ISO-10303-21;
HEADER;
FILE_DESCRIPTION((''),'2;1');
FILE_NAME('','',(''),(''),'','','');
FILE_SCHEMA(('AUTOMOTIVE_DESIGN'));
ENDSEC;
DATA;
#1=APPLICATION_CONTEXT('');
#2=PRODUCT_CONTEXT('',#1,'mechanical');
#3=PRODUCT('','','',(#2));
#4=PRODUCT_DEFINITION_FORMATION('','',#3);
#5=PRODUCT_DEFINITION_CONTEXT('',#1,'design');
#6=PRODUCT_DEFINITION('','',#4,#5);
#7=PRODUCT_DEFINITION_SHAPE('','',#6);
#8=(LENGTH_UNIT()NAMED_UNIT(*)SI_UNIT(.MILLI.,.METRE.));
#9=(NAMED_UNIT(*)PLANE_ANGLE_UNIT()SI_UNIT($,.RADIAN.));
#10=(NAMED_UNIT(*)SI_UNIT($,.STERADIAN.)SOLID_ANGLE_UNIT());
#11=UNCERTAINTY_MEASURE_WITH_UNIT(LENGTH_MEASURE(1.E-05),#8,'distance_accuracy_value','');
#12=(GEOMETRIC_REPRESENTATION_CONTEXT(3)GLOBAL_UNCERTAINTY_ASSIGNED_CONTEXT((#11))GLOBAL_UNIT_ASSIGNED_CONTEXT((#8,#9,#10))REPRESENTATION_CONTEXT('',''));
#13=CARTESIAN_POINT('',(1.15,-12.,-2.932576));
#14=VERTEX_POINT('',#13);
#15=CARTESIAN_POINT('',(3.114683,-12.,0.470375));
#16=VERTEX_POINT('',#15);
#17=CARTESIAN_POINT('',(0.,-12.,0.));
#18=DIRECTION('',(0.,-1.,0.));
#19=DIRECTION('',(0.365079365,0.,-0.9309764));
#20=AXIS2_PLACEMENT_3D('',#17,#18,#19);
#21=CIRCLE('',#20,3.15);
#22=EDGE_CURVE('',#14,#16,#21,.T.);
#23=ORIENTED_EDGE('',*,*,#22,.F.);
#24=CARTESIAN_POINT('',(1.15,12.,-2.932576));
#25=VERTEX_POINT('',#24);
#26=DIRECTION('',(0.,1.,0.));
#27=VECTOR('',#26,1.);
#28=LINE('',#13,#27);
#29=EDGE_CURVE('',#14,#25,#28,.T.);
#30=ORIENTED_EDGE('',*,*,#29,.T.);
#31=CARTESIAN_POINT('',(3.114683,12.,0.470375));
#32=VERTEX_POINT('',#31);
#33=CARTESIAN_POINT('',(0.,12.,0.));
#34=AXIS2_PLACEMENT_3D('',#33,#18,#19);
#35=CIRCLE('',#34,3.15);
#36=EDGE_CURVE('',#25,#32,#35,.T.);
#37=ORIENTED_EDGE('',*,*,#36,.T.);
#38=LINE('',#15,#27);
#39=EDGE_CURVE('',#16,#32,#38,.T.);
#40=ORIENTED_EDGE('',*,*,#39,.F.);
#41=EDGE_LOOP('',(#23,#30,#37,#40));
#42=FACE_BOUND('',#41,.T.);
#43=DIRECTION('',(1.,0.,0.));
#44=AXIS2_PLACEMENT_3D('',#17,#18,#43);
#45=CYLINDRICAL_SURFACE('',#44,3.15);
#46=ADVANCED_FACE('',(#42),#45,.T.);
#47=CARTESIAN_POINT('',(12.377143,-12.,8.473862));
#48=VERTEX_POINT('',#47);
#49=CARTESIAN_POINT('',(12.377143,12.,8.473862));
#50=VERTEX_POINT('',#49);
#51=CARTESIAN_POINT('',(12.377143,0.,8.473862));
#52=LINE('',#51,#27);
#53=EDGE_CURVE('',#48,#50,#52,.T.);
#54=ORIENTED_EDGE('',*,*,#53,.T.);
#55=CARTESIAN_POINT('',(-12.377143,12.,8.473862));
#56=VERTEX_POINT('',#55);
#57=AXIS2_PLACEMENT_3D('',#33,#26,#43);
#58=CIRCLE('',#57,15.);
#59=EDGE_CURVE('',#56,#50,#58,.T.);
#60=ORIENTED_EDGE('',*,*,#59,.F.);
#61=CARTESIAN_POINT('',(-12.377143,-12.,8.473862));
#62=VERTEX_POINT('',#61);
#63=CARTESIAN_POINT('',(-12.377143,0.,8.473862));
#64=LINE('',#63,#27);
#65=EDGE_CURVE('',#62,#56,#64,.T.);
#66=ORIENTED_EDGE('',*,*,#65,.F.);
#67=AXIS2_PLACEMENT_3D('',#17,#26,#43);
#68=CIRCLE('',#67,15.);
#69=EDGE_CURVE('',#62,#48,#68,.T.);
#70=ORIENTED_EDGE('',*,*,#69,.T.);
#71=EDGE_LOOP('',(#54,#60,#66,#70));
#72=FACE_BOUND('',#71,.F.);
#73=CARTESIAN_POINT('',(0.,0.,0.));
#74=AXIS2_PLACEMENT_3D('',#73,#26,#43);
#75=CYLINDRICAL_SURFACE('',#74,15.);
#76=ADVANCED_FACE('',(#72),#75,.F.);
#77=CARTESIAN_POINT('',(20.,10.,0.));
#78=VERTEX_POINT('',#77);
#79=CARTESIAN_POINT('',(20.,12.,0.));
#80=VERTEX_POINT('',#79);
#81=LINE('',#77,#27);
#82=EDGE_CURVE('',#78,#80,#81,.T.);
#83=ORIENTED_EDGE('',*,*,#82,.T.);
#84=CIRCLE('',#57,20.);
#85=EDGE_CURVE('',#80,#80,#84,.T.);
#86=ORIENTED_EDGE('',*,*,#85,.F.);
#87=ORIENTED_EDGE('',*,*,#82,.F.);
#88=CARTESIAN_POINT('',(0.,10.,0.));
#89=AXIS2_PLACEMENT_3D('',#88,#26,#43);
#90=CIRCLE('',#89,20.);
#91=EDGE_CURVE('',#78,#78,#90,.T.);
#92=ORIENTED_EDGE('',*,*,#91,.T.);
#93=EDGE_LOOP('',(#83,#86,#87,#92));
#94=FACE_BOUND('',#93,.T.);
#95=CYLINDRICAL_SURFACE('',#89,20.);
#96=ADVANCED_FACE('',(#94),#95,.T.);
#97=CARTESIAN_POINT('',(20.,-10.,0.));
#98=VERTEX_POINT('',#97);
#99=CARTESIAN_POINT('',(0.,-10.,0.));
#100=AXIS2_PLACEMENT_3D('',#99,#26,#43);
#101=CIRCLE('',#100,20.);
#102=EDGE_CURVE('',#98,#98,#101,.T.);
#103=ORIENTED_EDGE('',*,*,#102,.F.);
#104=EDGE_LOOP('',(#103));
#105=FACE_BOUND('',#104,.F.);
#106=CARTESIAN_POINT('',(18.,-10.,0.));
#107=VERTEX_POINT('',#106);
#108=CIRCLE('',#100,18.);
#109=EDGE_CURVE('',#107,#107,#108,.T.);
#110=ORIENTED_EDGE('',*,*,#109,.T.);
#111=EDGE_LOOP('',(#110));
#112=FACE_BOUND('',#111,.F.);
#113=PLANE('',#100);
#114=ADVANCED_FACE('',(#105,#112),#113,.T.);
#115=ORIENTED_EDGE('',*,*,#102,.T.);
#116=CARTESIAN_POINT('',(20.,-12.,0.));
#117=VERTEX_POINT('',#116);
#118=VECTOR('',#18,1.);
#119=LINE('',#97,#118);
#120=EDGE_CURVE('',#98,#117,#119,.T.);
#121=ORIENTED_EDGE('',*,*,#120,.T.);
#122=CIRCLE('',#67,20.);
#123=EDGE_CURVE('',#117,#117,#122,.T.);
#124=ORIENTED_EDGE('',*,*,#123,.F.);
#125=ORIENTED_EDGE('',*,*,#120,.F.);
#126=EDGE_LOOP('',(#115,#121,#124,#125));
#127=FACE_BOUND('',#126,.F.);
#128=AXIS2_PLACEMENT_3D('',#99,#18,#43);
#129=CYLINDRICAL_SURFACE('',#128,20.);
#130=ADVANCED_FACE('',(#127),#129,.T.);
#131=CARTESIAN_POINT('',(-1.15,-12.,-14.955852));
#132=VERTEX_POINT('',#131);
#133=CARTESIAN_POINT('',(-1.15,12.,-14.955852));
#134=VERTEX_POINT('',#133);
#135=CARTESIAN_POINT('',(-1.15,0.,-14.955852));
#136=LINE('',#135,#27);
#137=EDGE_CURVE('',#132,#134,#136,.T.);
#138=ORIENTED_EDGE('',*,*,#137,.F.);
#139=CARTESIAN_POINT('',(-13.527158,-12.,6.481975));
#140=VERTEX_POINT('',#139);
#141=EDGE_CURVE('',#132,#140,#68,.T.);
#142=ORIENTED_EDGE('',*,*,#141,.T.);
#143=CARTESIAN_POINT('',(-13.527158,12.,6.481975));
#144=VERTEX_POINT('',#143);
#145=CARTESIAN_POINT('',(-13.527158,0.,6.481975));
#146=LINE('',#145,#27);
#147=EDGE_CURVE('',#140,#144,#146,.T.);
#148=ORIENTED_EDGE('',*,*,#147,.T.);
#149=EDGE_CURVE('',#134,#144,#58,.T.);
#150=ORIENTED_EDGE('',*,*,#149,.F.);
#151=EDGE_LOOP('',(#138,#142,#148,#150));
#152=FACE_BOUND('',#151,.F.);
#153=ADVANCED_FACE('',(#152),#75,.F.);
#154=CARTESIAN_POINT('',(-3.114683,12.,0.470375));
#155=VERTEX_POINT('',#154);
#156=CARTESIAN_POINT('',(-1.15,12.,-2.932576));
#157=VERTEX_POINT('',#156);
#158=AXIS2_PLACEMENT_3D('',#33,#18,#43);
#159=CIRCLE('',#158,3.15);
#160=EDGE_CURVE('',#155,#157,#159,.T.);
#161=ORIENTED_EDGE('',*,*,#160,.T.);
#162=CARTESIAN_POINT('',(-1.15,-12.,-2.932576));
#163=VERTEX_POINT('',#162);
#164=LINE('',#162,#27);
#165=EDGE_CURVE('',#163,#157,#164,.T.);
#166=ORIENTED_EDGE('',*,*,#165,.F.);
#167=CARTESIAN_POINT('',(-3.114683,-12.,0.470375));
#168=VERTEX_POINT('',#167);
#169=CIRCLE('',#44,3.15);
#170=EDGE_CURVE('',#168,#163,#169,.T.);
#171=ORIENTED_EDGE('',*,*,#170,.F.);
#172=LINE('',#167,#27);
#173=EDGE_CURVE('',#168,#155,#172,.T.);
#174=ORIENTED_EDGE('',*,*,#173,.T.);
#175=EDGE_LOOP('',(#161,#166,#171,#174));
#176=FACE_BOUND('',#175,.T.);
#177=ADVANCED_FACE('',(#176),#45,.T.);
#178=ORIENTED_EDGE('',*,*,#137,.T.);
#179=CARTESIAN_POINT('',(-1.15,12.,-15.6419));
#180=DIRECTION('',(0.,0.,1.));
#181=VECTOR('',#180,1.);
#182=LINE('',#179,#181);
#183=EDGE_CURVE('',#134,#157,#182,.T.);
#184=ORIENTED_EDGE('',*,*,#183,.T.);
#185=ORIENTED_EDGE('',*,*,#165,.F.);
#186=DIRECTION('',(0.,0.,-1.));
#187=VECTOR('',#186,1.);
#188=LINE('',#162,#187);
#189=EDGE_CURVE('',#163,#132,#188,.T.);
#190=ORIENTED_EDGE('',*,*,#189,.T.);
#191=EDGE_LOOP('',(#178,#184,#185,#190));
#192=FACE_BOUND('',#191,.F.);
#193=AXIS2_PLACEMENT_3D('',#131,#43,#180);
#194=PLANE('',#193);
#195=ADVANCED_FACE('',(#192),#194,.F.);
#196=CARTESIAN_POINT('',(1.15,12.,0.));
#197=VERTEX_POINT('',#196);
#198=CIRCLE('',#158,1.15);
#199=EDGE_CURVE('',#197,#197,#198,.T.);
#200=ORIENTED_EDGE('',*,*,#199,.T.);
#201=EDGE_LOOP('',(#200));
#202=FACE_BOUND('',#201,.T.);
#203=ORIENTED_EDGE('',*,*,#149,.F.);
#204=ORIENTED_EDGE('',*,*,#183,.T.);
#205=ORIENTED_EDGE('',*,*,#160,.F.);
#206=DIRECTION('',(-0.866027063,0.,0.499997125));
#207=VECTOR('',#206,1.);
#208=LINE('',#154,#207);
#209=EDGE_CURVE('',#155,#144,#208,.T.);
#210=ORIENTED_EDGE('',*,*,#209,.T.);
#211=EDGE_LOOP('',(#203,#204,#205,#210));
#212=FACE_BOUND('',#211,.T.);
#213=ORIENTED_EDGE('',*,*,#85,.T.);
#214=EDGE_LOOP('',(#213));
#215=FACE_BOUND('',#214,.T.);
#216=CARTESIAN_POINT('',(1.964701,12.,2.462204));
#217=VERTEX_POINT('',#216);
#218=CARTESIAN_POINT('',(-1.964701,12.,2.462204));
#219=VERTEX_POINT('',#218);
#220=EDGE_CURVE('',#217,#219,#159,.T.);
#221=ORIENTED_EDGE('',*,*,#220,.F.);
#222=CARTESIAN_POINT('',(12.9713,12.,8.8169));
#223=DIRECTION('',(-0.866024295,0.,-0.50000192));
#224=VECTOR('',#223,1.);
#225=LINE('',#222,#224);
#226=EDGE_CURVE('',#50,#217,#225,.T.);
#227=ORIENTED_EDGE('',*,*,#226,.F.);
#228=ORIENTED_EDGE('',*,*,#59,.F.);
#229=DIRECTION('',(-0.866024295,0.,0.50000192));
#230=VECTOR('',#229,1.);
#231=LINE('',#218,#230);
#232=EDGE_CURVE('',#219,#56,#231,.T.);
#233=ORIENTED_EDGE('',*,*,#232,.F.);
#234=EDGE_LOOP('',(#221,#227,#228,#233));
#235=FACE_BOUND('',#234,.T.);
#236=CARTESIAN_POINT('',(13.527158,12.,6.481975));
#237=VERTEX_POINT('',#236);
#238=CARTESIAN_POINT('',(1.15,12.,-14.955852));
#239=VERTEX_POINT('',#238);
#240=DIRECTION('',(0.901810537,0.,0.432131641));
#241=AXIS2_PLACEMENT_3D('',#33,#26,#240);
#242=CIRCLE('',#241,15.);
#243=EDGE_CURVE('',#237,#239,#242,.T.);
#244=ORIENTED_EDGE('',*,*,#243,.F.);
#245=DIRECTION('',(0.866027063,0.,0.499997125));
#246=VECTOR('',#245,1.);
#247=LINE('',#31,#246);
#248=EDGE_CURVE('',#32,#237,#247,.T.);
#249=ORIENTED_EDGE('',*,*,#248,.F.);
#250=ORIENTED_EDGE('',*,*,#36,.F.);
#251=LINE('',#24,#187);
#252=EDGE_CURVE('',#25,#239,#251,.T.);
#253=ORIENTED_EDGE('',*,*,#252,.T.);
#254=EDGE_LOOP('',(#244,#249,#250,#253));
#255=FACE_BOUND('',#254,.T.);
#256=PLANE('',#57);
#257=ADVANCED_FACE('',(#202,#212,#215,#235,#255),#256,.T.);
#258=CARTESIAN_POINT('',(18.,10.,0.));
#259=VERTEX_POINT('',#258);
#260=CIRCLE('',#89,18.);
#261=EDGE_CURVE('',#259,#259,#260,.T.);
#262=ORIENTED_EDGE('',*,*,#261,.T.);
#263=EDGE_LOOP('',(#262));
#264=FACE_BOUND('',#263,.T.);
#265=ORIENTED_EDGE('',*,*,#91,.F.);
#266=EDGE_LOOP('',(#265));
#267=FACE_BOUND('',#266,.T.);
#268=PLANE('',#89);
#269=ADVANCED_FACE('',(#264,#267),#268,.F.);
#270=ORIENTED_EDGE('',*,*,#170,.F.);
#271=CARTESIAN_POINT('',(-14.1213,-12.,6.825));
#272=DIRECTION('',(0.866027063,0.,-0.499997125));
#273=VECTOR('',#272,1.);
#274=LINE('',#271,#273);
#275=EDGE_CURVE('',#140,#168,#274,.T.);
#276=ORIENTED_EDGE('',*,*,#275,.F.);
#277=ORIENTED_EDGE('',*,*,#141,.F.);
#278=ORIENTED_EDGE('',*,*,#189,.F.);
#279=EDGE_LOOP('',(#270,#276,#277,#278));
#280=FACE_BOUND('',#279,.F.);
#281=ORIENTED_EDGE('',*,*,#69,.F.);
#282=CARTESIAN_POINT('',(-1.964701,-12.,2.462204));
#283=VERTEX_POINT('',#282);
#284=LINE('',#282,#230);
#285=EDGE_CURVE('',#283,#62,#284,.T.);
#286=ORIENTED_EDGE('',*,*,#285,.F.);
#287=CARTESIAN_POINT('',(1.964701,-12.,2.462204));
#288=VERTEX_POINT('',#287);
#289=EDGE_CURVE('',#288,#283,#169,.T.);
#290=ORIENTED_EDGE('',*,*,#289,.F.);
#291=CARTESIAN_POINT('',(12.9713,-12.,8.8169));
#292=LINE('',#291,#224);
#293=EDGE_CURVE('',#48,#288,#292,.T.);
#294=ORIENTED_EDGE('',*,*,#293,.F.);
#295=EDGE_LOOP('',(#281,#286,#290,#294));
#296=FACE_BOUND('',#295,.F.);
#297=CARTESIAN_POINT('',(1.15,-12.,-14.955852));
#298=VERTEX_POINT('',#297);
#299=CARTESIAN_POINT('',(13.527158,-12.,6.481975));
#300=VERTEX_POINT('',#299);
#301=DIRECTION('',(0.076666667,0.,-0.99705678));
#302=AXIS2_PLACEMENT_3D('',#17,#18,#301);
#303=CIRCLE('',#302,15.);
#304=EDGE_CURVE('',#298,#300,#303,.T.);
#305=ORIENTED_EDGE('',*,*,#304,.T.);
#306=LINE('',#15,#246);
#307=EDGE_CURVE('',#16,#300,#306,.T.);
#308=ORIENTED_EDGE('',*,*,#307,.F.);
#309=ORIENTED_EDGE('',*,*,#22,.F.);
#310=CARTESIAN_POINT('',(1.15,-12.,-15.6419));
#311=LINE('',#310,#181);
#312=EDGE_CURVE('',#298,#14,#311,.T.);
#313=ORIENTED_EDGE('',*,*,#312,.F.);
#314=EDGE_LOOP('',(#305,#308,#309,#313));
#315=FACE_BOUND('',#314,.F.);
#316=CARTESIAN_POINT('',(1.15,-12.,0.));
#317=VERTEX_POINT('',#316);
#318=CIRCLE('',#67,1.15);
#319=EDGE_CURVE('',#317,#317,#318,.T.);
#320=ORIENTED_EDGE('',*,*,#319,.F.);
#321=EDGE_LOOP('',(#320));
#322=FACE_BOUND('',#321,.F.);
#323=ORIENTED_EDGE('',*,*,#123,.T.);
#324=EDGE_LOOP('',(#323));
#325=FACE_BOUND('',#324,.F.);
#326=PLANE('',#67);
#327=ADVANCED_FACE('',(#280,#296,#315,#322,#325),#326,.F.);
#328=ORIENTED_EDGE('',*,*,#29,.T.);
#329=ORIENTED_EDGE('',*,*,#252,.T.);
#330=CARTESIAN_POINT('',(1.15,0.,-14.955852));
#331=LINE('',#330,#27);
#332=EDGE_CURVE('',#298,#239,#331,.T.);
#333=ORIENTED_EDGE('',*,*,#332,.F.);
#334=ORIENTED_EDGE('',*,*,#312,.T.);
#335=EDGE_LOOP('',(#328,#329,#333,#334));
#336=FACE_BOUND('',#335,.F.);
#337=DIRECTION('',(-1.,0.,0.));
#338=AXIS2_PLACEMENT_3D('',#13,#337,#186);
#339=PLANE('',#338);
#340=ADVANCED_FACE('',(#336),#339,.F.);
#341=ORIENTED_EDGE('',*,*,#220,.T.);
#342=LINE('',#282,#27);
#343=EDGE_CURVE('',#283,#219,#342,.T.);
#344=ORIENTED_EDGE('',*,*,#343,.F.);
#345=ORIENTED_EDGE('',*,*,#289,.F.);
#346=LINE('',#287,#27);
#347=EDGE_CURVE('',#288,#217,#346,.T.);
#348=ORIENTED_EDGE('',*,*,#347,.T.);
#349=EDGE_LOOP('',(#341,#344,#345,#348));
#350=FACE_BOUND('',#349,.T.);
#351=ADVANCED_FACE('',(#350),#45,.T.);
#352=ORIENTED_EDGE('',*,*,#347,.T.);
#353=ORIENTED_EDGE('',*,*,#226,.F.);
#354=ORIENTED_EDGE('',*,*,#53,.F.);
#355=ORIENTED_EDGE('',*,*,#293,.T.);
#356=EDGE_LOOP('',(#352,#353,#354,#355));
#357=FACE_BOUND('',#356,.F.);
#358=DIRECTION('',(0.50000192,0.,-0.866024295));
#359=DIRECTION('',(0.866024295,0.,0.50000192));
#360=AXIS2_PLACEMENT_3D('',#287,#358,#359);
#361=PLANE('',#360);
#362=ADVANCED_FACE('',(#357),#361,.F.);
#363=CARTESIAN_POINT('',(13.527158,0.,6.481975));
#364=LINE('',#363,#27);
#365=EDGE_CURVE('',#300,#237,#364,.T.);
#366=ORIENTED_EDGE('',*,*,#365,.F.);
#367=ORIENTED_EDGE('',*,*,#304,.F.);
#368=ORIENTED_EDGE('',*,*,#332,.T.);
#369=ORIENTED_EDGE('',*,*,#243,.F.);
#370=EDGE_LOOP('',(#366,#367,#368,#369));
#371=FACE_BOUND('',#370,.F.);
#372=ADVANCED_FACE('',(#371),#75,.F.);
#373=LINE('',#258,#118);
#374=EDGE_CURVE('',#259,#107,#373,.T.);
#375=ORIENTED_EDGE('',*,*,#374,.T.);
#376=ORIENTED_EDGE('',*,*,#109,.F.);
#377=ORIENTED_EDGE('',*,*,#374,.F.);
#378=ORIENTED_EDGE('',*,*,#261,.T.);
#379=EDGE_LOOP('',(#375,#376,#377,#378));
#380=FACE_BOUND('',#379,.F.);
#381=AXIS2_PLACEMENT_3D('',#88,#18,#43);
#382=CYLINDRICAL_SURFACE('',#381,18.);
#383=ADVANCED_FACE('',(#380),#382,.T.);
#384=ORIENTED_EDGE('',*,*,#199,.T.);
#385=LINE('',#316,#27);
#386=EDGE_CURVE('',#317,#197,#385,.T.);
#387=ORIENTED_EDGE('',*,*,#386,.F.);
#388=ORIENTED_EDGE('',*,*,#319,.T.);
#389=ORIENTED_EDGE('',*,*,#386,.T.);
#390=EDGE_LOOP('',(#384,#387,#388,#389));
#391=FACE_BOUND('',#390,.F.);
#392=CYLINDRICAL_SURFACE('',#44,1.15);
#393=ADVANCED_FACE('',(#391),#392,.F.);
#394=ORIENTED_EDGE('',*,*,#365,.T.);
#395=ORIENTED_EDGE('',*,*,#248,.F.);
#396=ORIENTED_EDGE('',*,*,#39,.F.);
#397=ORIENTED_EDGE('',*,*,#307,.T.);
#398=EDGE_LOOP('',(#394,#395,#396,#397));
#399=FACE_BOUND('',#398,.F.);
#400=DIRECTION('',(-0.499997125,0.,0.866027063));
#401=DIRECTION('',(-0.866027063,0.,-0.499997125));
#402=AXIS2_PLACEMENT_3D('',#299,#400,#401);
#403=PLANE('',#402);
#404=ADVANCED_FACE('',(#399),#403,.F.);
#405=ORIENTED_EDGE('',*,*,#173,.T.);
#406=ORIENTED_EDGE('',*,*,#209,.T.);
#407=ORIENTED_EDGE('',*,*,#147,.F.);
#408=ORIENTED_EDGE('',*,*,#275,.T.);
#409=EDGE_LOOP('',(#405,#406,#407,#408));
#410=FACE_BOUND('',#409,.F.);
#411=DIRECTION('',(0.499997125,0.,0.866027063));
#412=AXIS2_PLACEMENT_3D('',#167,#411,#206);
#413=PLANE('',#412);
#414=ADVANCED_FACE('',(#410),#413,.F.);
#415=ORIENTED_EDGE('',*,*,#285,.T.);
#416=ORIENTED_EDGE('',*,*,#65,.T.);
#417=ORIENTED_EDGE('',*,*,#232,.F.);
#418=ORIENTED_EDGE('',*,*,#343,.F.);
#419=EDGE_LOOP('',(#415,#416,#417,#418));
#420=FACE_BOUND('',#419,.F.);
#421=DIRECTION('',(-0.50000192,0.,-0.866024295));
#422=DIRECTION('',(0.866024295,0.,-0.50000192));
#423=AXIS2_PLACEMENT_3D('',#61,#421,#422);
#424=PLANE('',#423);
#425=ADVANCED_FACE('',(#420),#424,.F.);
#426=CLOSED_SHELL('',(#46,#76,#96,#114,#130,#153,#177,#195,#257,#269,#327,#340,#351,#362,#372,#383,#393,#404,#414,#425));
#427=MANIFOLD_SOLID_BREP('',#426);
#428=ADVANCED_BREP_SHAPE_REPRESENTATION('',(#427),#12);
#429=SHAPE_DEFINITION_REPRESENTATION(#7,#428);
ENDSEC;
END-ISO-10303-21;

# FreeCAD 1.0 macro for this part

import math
import FreeCAD as App
import Part
import Sketcher

V = App.Vector
Q = App.Units.Quantity

doc = App.newDocument("Part")
body = doc.addObject("PartDesign::Body", "Body")

sketch1 = body.newObject("Sketcher::SketchObject", "Sketch")
sketch1.AttachmentSupport = (doc.getObject("XY_Plane"), [""])
sketch1.MapMode = "FlatFace"
sketch1.addGeometry([
    Part.LineSegment(V(15, -12, 0), V(20, -12, 0)),
    Part.LineSegment(V(20, -12, 0), V(20, -10, 0)),
    Part.LineSegment(V(20, -10, 0), V(18, -10, 0)),
    Part.LineSegment(V(18, -10, 0), V(18, 10, 0)),
    Part.LineSegment(V(18, 10, 0), V(20, 10, 0)),
    Part.LineSegment(V(20, 10, 0), V(20, 12, 0)),
    Part.LineSegment(V(20, 12, 0), V(15, 12, 0)),
    Part.LineSegment(V(15, 12, 0), V(15, -12, 0)),
], False)
sketch1.addConstraint([
    Sketcher.Constraint("Coincident", 0, 2, 1, 1),
    Sketcher.Constraint("Coincident", 1, 2, 2, 1),
    Sketcher.Constraint("Coincident", 2, 2, 3, 1),
    Sketcher.Constraint("Coincident", 3, 2, 4, 1),
    Sketcher.Constraint("Coincident", 4, 2, 5, 1),
    Sketcher.Constraint("Coincident", 5, 2, 6, 1),
    Sketcher.Constraint("Coincident", 6, 2, 7, 1),
    Sketcher.Constraint("Coincident", 7, 2, 0, 1),
    Sketcher.Constraint("Horizontal", 0),
    Sketcher.Constraint("Vertical", 1),
    Sketcher.Constraint("Horizontal", 2),
    Sketcher.Constraint("Vertical", 3),
    Sketcher.Constraint("Horizontal", 4),
    Sketcher.Constraint("Vertical", 5),
    Sketcher.Constraint("Horizontal", 6),
    Sketcher.Constraint("Vertical", 7),
    Sketcher.Constraint("Symmetric", 1, 2, 4, 2, -1),
    Sketcher.Constraint("Equal", 4, 1),
    Sketcher.Constraint("Equal", 1, 5),
    Sketcher.Constraint("DistanceX", 0, 1, 0, 2, 5.0),
    Sketcher.Constraint("DistanceX", 2, 2, 2, 1, 2.0),
    Sketcher.Constraint("DistanceY", 3, 1, 3, 2, 20.0),
    Sketcher.Constraint("DistanceX", -1, 1, 0, 2, 20.0),
])
revolution = body.newObject("PartDesign::Revolution", "Revolution")
revolution.Profile = sketch1
revolution.ReferenceAxis = (sketch1, ["V_Axis"])
revolution.Angle = 360

sketch2 = body.newObject("Sketcher::SketchObject", "Sketch001")
sketch2.AttachmentSupport = (doc.getObject("XZ_Plane"), [""])
sketch2.MapMode = "FlatFace"
sketch2.AttachmentOffset = App.Placement(V(0, 0, 12), App.Rotation())
sketch2.addGeometry([
    Part.ArcOfCircle(Part.Circle(V(0, 0, 0), V(0, 0, 1), 3.1), math.radians(51), math.radians(129)),
    Part.LineSegment(V(-2, 2.5, 0), V(-13, 8.8, 0)),
    Part.LineSegment(V(-13, 8.8, 0), V(-14.1, 6.8, 0)),
    Part.LineSegment(V(-14.1, 6.8, 0), V(-3.1, 0.5, 0)),
    Part.ArcOfCircle(Part.Circle(V(0, 0, 0), V(0, 0, 1), 3.1), math.radians(171), math.radians(249)),
    Part.LineSegment(V(-1.1, -2.9, 0), V(-1.1, -15.6, 0)),
    Part.LineSegment(V(-1.1, -15.6, 0), V(1.1, -15.6, 0)),
    Part.LineSegment(V(1.1, -15.6, 0), V(1.1, -2.9, 0)),
    Part.ArcOfCircle(Part.Circle(V(0, 0, 0), V(0, 0, 1), 3.1), math.radians(-69), math.radians(9)),
    Part.LineSegment(V(3.1, 0.5, 0), V(14.1, 6.8, 0)),
    Part.LineSegment(V(14.1, 6.8, 0), V(13, 8.8, 0)),
    Part.LineSegment(V(13, 8.8, 0), V(2, 2.5, 0)),
], False)
sketch2.addConstraint([
    Sketcher.Constraint("Coincident", 0, 2, 1, 1),
    Sketcher.Constraint("Coincident", 1, 2, 2, 1),
    Sketcher.Constraint("Coincident", 2, 2, 3, 1),
    Sketcher.Constraint("Coincident", 3, 2, 4, 1),
    Sketcher.Constraint("Coincident", 4, 2, 5, 1),
    Sketcher.Constraint("Coincident", 5, 2, 6, 1),
    Sketcher.Constraint("Coincident", 6, 2, 7, 1),
    Sketcher.Constraint("Coincident", 7, 2, 8, 1),
    Sketcher.Constraint("Coincident", 8, 2, 9, 1),
    Sketcher.Constraint("Coincident", 9, 2, 10, 1),
    Sketcher.Constraint("Coincident", 10, 2, 11, 1),
    Sketcher.Constraint("Coincident", 11, 2, 0, 1),
    Sketcher.Constraint("Vertical", 5),
    Sketcher.Constraint("Horizontal", 6),
    Sketcher.Constraint("Vertical", 7),
    Sketcher.Constraint("Coincident", 0, 3, -1, 1),
    Sketcher.Constraint("Coincident", 4, 3, -1, 1),
    Sketcher.Constraint("Coincident", 8, 3, -1, 1),
    Sketcher.Constraint("Equal", 0, 4),
    Sketcher.Constraint("Equal", 4, 8),
    Sketcher.Constraint("Symmetric", 2, 2, 9, 2, -2),
    Sketcher.Constraint("Symmetric", 1, 2, 10, 2, -2),
    Sketcher.Constraint("Perpendicular", 1, 2),
    Sketcher.Constraint("Perpendicular", 2, 3),
    Sketcher.Constraint("Perpendicular", 9, 10),
    Sketcher.Constraint("Perpendicular", 10, 11),
    Sketcher.Constraint("Horizontal", 4, 2, 7, 2),
    Sketcher.Constraint("Equal", 1, 3),
    Sketcher.Constraint("DistanceX", 6, 1, 6, 2, 2.3),
    Sketcher.Constraint("Distance", 2, 2.3),
    Sketcher.Constraint("Angle", 1, Q("149.9999 deg")),
    Sketcher.Constraint("Radius", 0, 3.15),
    Sketcher.Constraint("DistanceY", 5, 2, 5, 1, 12.7093),
    Sketcher.Constraint("DistanceY", -1, 1, 1, 2, 8.817),
])
pad1 = body.newObject("PartDesign::Pad", "Pad")
pad1.Profile = sketch2
pad1.Length = 24
pad1.Reversed = True

sketch3 = body.newObject("Sketcher::SketchObject", "Sketch002")
sketch3.AttachmentSupport = (doc.getObject("XZ_Plane"), [""])
sketch3.MapMode = "FlatFace"
sketch3.AttachmentOffset = App.Placement(V(0, 0, 12), App.Rotation())
sketch3.addGeometry(Part.Circle(V(0, 0, 0), V(0, 0, 1), 1.1), False)
sketch3.addConstraint([
    Sketcher.Constraint("Coincident", 0, 3, -1, 1),
    Sketcher.Constraint("Diameter", 0, 2.3),
])
pocket1 = body.newObject("PartDesign::Pocket", "Pocket")
pocket1.Profile = sketch3
pocket1.Length = 24

doc.recompute()
